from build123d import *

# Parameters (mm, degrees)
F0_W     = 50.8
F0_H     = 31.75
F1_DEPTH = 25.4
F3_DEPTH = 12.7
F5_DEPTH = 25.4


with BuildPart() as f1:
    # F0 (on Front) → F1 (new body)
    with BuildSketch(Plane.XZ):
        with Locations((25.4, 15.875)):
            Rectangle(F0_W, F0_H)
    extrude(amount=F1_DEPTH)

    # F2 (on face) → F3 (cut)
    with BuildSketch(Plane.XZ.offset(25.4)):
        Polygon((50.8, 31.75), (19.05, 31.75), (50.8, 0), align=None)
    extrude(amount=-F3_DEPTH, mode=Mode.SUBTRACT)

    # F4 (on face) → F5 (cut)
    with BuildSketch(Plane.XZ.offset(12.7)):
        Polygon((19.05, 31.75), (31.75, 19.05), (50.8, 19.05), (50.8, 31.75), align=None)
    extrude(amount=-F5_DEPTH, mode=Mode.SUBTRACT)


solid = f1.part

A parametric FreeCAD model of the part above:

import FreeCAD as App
import Part
import Sketcher

V = App.Vector
Q = App.Units.Quantity


def add_polygon(sketch, points):
    """Adds a closed chain of lines whose ends are joined by coincident constraints."""
    first, n = sketch.GeometryCount, len(points)
    for a, b in zip(points, points[1:] + points[:1]):
        sketch.addGeometry(Part.LineSegment(App.Vector(*a, 0), App.Vector(*b, 0)), False)
    for i in range(n):
        sketch.addConstraint(Sketcher.Constraint("Coincident", first + i, 2, first + (i + 1) % n, 1))

doc = App.newDocument("Part")
body = doc.addObject("PartDesign::Body", "Body")

# Sketch on XZ plane
sketch1 = body.newObject("Sketcher::SketchObject", "Sketch")
sketch1.AttachmentSupport = (doc.getObject("XZ_Plane"), [""])
sketch1.MapMode = "FlatFace"
add_polygon(sketch1, [(0, 32), (0, 0), (51, 0), (51, 32)])  # lines 0-3
sketch1.addConstraint([
    Sketcher.Constraint("Vertical", 0),
    Sketcher.Constraint("Horizontal", 1),
    Sketcher.Constraint("Vertical", 2),
    Sketcher.Constraint("Horizontal", 3),
    Sketcher.Constraint("Coincident", 0, 2, -1, 1),
    Sketcher.Constraint("DistanceX", 1, 1, 1, 2, Q("2 in")),
    Sketcher.Constraint("DistanceY", 0, 2, 0, 1, Q("1.25 in")),
])
pad1 = body.newObject("PartDesign::Pad", "Pad")
pad1.Profile = sketch1
pad1.Length = Q("1 in")

# Sketch on XZ plane
sketch2 = body.newObject("Sketcher::SketchObject", "Sketch001")
sketch2.AttachmentSupport = (doc.getObject("XZ_Plane"), [""])
sketch2.MapMode = "FlatFace"
sketch2.AttachmentOffset = App.Placement(V(0, 0, 1 * 25.4), App.Rotation())
add_polygon(sketch2, [(51, 32), (19, 32), (51, 0)])  # lines 0-2
sketch2.addConstraint([
    Sketcher.Constraint("Horizontal", 0),
    Sketcher.Constraint("Vertical", 2),
    Sketcher.Constraint("PointOnObject", 1, 2, -1),
    Sketcher.Constraint("Equal", 0, 2),
    Sketcher.Constraint("DistanceX", -1, 1, 1, 2, Q("2 in")),
    Sketcher.Constraint("DistanceX", 0, 2, 0, 1, Q("1.25 in")),
])
pocket1 = body.newObject("PartDesign::Pocket", "Pocket")
pocket1.Profile = sketch2
pocket1.Length = Q("0.5 in")

# Sketch on XZ plane
sketch3 = body.newObject("Sketcher::SketchObject", "Sketch002")
sketch3.AttachmentSupport = (doc.getObject("XZ_Plane"), [""])
sketch3.MapMode = "FlatFace"
sketch3.AttachmentOffset = App.Placement(V(0, 0, 0.5 * 25.4), App.Rotation())
add_polygon(sketch3, [(19, 32), (32, 19), (51, 19), (51, 32)])  # lines 0-3
sketch3.addConstraint([
    Sketcher.Constraint("Horizontal", 1),
    Sketcher.Constraint("Vertical", 2),
    Sketcher.Constraint("Horizontal", 3),
    Sketcher.Constraint("DistanceY", 2, 1, 2, 2, Q("0.5 in")),
    Sketcher.Constraint("DistanceX", -1, 1, 1, 2, Q("2 in")),
    Sketcher.Constraint("Angle", 0, Q("-45 deg")),
    Sketcher.Constraint("DistanceX", 1, 1, 1, 2, Q("0.75 in")),
    Sketcher.Constraint("DistanceY", -1, 1, 0, 2, Q("0.75 in")),
])
pocket2 = body.newObject("PartDesign::Pocket", "Pocket001")
pocket2.Profile = sketch3
pocket2.Length = Q("1 in")

doc.recompute()
